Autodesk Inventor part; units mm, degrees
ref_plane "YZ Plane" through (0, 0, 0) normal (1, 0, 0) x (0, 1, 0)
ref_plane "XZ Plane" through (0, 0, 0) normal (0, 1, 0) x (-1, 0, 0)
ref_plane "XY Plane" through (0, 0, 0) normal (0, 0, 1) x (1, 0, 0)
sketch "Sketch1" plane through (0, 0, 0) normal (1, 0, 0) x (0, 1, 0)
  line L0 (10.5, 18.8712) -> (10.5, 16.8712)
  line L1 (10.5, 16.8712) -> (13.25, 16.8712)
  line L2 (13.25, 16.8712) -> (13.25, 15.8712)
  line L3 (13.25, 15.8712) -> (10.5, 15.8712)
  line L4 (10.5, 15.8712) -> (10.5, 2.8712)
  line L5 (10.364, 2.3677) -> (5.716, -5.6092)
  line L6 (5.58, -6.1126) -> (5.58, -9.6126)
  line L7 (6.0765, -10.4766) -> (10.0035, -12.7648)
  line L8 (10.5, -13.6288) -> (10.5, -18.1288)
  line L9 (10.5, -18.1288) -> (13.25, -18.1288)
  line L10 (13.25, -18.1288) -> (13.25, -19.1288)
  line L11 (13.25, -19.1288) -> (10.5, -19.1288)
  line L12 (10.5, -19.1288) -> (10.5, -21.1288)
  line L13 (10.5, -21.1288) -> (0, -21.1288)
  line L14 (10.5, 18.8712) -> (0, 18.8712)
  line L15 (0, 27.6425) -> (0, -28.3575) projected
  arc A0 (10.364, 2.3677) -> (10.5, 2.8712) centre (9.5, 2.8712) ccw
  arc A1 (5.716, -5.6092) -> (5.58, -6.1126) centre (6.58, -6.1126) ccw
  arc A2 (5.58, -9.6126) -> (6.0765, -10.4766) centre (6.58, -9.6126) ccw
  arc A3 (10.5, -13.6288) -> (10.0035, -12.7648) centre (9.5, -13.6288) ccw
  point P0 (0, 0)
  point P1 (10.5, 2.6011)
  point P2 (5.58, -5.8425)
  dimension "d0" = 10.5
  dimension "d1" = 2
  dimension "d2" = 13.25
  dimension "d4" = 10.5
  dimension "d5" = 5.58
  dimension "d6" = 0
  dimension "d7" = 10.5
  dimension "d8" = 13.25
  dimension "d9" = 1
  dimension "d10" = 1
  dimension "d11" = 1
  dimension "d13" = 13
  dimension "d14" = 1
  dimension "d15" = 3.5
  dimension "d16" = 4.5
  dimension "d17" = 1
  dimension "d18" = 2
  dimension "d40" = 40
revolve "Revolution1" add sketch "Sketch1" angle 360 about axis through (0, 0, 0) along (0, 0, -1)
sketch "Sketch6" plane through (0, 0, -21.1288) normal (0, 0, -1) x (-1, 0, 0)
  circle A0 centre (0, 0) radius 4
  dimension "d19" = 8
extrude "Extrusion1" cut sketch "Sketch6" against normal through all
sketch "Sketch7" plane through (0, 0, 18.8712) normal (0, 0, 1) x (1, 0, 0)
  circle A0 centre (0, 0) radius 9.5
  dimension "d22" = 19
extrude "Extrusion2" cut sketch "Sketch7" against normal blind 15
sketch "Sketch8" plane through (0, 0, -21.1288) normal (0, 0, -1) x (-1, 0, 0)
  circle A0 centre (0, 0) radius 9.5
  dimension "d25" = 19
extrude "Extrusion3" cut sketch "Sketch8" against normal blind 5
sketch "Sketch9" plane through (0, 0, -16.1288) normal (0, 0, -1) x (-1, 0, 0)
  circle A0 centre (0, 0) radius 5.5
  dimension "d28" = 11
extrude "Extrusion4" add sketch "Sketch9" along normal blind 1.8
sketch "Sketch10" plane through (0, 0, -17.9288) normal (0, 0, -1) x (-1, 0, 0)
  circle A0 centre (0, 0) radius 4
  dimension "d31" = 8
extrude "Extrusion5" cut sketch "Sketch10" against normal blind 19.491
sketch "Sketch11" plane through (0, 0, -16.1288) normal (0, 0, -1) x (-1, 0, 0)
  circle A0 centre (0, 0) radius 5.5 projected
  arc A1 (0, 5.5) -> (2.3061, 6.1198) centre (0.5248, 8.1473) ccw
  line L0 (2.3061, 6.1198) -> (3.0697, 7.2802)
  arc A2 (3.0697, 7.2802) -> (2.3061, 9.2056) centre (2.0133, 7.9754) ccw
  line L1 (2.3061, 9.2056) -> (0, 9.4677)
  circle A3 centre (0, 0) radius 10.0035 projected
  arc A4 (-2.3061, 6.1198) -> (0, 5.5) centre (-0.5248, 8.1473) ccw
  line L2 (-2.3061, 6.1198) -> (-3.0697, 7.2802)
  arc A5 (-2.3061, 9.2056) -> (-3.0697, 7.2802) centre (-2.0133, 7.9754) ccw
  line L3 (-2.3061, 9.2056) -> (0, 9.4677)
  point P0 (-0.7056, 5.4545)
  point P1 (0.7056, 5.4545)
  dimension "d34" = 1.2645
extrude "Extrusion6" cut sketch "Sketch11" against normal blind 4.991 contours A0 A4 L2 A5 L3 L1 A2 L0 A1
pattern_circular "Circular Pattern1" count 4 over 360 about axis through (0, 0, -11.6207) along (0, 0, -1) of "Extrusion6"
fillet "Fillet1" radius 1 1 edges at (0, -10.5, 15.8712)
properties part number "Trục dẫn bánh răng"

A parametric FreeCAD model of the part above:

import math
import FreeCAD as App
import Part
import Sketcher
from FreeCAD import Vector


def edges_at(feature, points):
    """Names of the edges that pass closest to the given points."""
    edges = feature.Shape.Edges
    near = lambda p: min(range(len(edges)), key=lambda i: edges[i].distToShape(Part.Vertex(*p))[0])
    return sorted({f"Edge{near(p) + 1}" for p in points})

doc = App.newDocument("Part")
params = doc.addObject("Spreadsheet::Sheet", "Params")
for row, (alias, value) in enumerate([
    ("sketch1_radius", "1 mm"),
    ("sketch1_height", "2 mm"),
    ("sketch1_height2", "40 mm"),
    ("sketch1_height3", "1 mm"),
    ("sketch1_height4", "13 mm"),
    ("revolution_angle", "360 deg"),
    ("sketch2_diameter", "8 mm"),
    ("sketch3_diameter", "19 mm"),
    ("pocket2_length", "15 mm"),
    ("sketch4_diameter", "19 mm"),
    ("pocket3_length", "5 mm"),
    ("sketch5_diameter", "11 mm"),
    ("pad1_length", "1.8 mm"),
    ("sketch6_diameter", "8 mm"),
    ("pocket4_length", "19.491 mm"),
    ("sketch7_radius", "5.5 mm"),
    ("pocket5_length", "4.991 mm"),
    ("fillet_radius", "1 mm"),
], start=1):
    params.set(f"A{row}", alias)
    params.set(f"B{row}", "=" + value)
    params.setAlias(f"B{row}", alias)

body = doc.addObject("PartDesign::Body", "Body")

# Sketch on YZ plane
sketch1 = doc.addObject("Sketcher::SketchObject", "Sketch")
body.addObject(sketch1)
sketch1.AttachmentSupport = (doc.YZ_Plane, [""])
sketch1.MapMode = "FlatFace"
sketch1.addGeometry([
    Part.LineSegment(Vector(10.5, 16.9, 0), Vector(10.5, 18.9, 0)),  # 0
    Part.LineSegment(Vector(10.5, 18.9, 0), Vector(0, 18.9, 0)),  # 1
    Part.LineSegment(Vector(0, 18.9, 0), Vector(0, -21.1, 0)),  # 2
    Part.LineSegment(Vector(0, -21.1, 0), Vector(10.5, -21.1, 0)),  # 3
    Part.LineSegment(Vector(10.5, -21.1, 0), Vector(10.5, -19.1, 0)),  # 4
    Part.LineSegment(Vector(10.5, -19.1, 0), Vector(13.2, -19.1, 0)),  # 5
    Part.LineSegment(Vector(13.2, -19.1, 0), Vector(13.2, -18.1, 0)),  # 6
    Part.LineSegment(Vector(13.2, -18.1, 0), Vector(10.5, -18.1, 0)),  # 7
    Part.LineSegment(Vector(10.5, -18.1, 0), Vector(10.5, -13.6, 0)),  # 8
    Part.ArcOfCircle(Part.Circle(Vector(9.5, -13.6, 0), Vector(0, 0, 1), 1), math.radians(0), math.radians(60)),  # 9
    Part.LineSegment(Vector(10, -12.8, 0), Vector(6.1, -10.5, 0)),  # 10
    Part.ArcOfCircle(Part.Circle(Vector(6.6, -9.6, 0), Vector(0, 0, 1), 1), math.radians(180), math.radians(240)),  # 11
    Part.LineSegment(Vector(5.6, -9.6, 0), Vector(5.6, -6.1, 0)),  # 12
    Part.ArcOfCircle(Part.Circle(Vector(6.6, -6.1, 0), Vector(0, 0, 1), 1), math.radians(150), math.radians(180)),  # 13
    Part.LineSegment(Vector(5.7, -5.6, 0), Vector(10.4, 2.4, 0)),  # 14
    Part.ArcOfCircle(Part.Circle(Vector(9.5, 2.9, 0), Vector(0, 0, 1), 1), math.radians(-30), math.radians(0)),  # 15
    Part.LineSegment(Vector(10.5, 2.9, 0), Vector(10.5, 15.9, 0)),  # 16
    Part.LineSegment(Vector(10.5, 15.9, 0), Vector(13.2, 15.9, 0)),  # 17
    Part.LineSegment(Vector(13.2, 15.9, 0), Vector(13.2, 16.9, 0)),  # 18
    Part.LineSegment(Vector(13.2, 16.9, 0), Vector(10.5, 16.9, 0)),  # 19
], False)
sketch1.addConstraint([
    Sketcher.Constraint("Coincident", 0, 2, 1, 1),
    Sketcher.Constraint("Coincident", 1, 2, 2, 1),
    Sketcher.Constraint("Coincident", 2, 2, 3, 1),
    Sketcher.Constraint("Coincident", 3, 2, 4, 1),
    Sketcher.Constraint("Coincident", 4, 2, 5, 1),
    Sketcher.Constraint("Coincident", 5, 2, 6, 1),
    Sketcher.Constraint("Coincident", 6, 2, 7, 1),
    Sketcher.Constraint("Coincident", 7, 2, 8, 1),
    Sketcher.Constraint("Tangent", 8, 2, 9, 1),
    Sketcher.Constraint("Tangent", 9, 2, 10, 1),
    Sketcher.Constraint("Tangent", 10, 2, 11, 2),
    Sketcher.Constraint("Tangent", 11, 1, 12, 1),
    Sketcher.Constraint("Tangent", 12, 2, 13, 2),
    Sketcher.Constraint("Tangent", 13, 1, 14, 1),
    Sketcher.Constraint("Tangent", 14, 2, 15, 1),
    Sketcher.Constraint("Tangent", 15, 2, 16, 1),
    Sketcher.Constraint("Coincident", 16, 2, 17, 1),
    Sketcher.Constraint("Coincident", 17, 2, 18, 1),
    Sketcher.Constraint("Coincident", 18, 2, 19, 1),
    Sketcher.Constraint("Coincident", 19, 2, 0, 1),
    Sketcher.Constraint("Vertical", 0),
    Sketcher.Constraint("Horizontal", 1),
    Sketcher.Constraint("Vertical", 2),
    Sketcher.Constraint("Horizontal", 3),
    Sketcher.Constraint("Vertical", 4),
    Sketcher.Constraint("Horizontal", 5),
    Sketcher.Constraint("Vertical", 6),
    Sketcher.Constraint("Horizontal", 7),
    Sketcher.Constraint("Vertical", 8),
    Sketcher.Constraint("Vertical", 12),
    Sketcher.Constraint("Vertical", 16),
    Sketcher.Constraint("Horizontal", 17),
    Sketcher.Constraint("Vertical", 18),
    Sketcher.Constraint("Horizontal", 19),
    Sketcher.Constraint("Equal", 9, 11),
    Sketcher.Constraint("Equal", 11, 13),
    Sketcher.Constraint("Equal", 13, 15),
    Sketcher.Constraint("PointOnObject", 1, 2, -2),
    Sketcher.Constraint("Perpendicular", 10, 14),
    Sketcher.Constraint("Vertical", 9, 3, 15, 3),
    Sketcher.Constraint("Vertical", 0, 2, 3, 2),
    Sketcher.Constraint("Vertical", 4, 2, 7, 2),
    Sketcher.Constraint("Vertical", 6, 2, 17, 2),
    Sketcher.Constraint("Equal", 0, 4),
    Sketcher.Constraint("Equal", 6, 18),
    Sketcher.Constraint("Radius", 9, 1.0),
    Sketcher.Constraint("DistanceY", 0, 1, 0, 2, 2.0),
    Sketcher.Constraint("DistanceY", 2, 2, 2, 1, 40.0),
    Sketcher.Constraint("DistanceY", 6, 1, 6, 2, 1.0),
    Sketcher.Constraint("DistanceY", 16, 1, 16, 2, 13.0),
    Sketcher.Constraint("DistanceX", 1, 2, 1, 1, 10.5),
    Sketcher.Constraint("DistanceY", 8, 1, 8, 2, 4.5),
    Sketcher.Constraint("DistanceY", 12, 1, 12, 2, 3.5),
    Sketcher.Constraint("DistanceX", -1, 1, 5, 2, 13.25),
    Sketcher.Constraint("DistanceX", -1, 1, 11, 1, 5.58),
    Sketcher.Constraint("DistanceY", 9, 3, -1, 1, 13.6288),
])
sketch1.setExpression("Constraints[45]", "Params.sketch1_radius")
sketch1.setExpression("Constraints[46]", "Params.sketch1_height")
sketch1.setExpression("Constraints[47]", "Params.sketch1_height2")
sketch1.setExpression("Constraints[48]", "Params.sketch1_height3")
sketch1.setExpression("Constraints[49]", "Params.sketch1_height4")
revolution = doc.addObject("PartDesign::Revolution", "Revolution")
body.addObject(revolution)
revolution.Profile = sketch1
revolution.ReferenceAxis = (sketch1, ["V_Axis"])
revolution.setExpression("Angle", "Params.revolution_angle")

# Sketch on XY plane
sketch2 = doc.addObject("Sketcher::SketchObject", "Sketch001")
body.addObject(sketch2)
sketch2.AttachmentSupport = (doc.XY_Plane, [""])
sketch2.MapMode = "FlatFace"
sketch2.AttachmentOffset = App.Placement(Vector(0, 0, -21.1288), App.Rotation())
sketch2.addGeometry(Part.Circle(Vector(0, 0, 0), Vector(0, 0, 1), 4), False)
sketch2.addConstraint([
    Sketcher.Constraint("Coincident", 0, 3, -1, 1),
    Sketcher.Constraint("Diameter", 0, 8.0),
])
sketch2.setExpression("Constraints[1]", "Params.sketch2_diameter")
pocket1 = doc.addObject("PartDesign::Pocket", "Pocket")
body.addObject(pocket1)
pocket1.Profile = sketch2
pocket1.Type = "ThroughAll"
pocket1.Reversed = True

# Sketch on XY plane
sketch3 = doc.addObject("Sketcher::SketchObject", "Sketch002")
body.addObject(sketch3)
sketch3.AttachmentSupport = (doc.XY_Plane, [""])
sketch3.MapMode = "FlatFace"
sketch3.AttachmentOffset = App.Placement(Vector(0, 0, 18.8712), App.Rotation())
sketch3.addGeometry(Part.Circle(Vector(0, 0, 0), Vector(0, 0, 1), 10), False)
sketch3.addConstraint([
    Sketcher.Constraint("Coincident", 0, 3, -1, 1),
    Sketcher.Constraint("Diameter", 0, 19.0),
])
sketch3.setExpression("Constraints[1]", "Params.sketch3_diameter")
pocket2 = doc.addObject("PartDesign::Pocket", "Pocket001")
body.addObject(pocket2)
pocket2.Profile = sketch3
pocket2.setExpression("Length", "Params.pocket2_length")

# Sketch on XY plane
sketch4 = doc.addObject("Sketcher::SketchObject", "Sketch003")
body.addObject(sketch4)
sketch4.AttachmentSupport = (doc.XY_Plane, [""])
sketch4.MapMode = "FlatFace"
sketch4.AttachmentOffset = App.Placement(Vector(0, 0, -21.1288), App.Rotation())
sketch4.addGeometry(Part.Circle(Vector(0, 0, 0), Vector(0, 0, 1), 10), False)
sketch4.addConstraint([
    Sketcher.Constraint("Coincident", 0, 3, -1, 1),
    Sketcher.Constraint("Diameter", 0, 19.0),
])
sketch4.setExpression("Constraints[1]", "Params.sketch4_diameter")
pocket3 = doc.addObject("PartDesign::Pocket", "Pocket002")
body.addObject(pocket3)
pocket3.Profile = sketch4
pocket3.setExpression("Length", "Params.pocket3_length")
pocket3.Reversed = True

# Sketch on XY plane
sketch5 = doc.addObject("Sketcher::SketchObject", "Sketch004")
body.addObject(sketch5)
sketch5.AttachmentSupport = (doc.XY_Plane, [""])
sketch5.MapMode = "FlatFace"
sketch5.AttachmentOffset = App.Placement(Vector(0, 0, -16.1288), App.Rotation())
sketch5.addGeometry(Part.Circle(Vector(0, 0, 0), Vector(0, 0, 1), 6), False)
sketch5.addConstraint([
    Sketcher.Constraint("Coincident", 0, 3, -1, 1),
    Sketcher.Constraint("Diameter", 0, 11.0),
])
sketch5.setExpression("Constraints[1]", "Params.sketch5_diameter")
pad1 = doc.addObject("PartDesign::Pad", "Pad")
body.addObject(pad1)
pad1.Profile = sketch5
pad1.setExpression("Length", "Params.pad1_length")
pad1.Reversed = True

# Sketch on XY plane
sketch6 = doc.addObject("Sketcher::SketchObject", "Sketch005")
body.addObject(sketch6)
sketch6.AttachmentSupport = (doc.XY_Plane, [""])
sketch6.MapMode = "FlatFace"
sketch6.AttachmentOffset = App.Placement(Vector(0, 0, -17.9288), App.Rotation())
sketch6.addGeometry(Part.Circle(Vector(0, 0, 0), Vector(0, 0, 1), 4), False)
sketch6.addConstraint([
    Sketcher.Constraint("Coincident", 0, 3, -1, 1),
    Sketcher.Constraint("Diameter", 0, 8.0),
])
sketch6.setExpression("Constraints[1]", "Params.sketch6_diameter")
pocket4 = doc.addObject("PartDesign::Pocket", "Pocket003")
body.addObject(pocket4)
pocket4.Profile = sketch6
pocket4.setExpression("Length", "Params.pocket4_length")
pocket4.Reversed = True

# Sketch on XY plane
sketch7 = doc.addObject("Sketcher::SketchObject", "Sketch006")
body.addObject(sketch7)
sketch7.AttachmentSupport = (doc.XY_Plane, [""])
sketch7.MapMode = "FlatFace"
sketch7.AttachmentOffset = App.Placement(Vector(0, 0, -16.1288), App.Rotation())
sketch7.addGeometry([
    Part.ArcOfCircle(Part.Circle(Vector(0, 0, 0), Vector(0, 0, 1), 5.5), math.radians(82.63), math.radians(97.37)),  # 0
    Part.ArcOfCircle(Part.Circle(Vector(-0.5, 8.1, 0), Vector(0, 0, 1), 2.7), math.radians(-131), math.radians(-94)),  # 1
    Part.LineSegment(Vector(-2.3, 6.1, 0), Vector(-3.1, 7.3, 0)),  # 2
    Part.ArcOfCircle(Part.Circle(Vector(-2, 8, 0), Vector(0, 0, 1), 1.3), math.radians(103), math.radians(213)),  # 3
    Part.LineSegment(Vector(-2.3, 9.2, 0), Vector(0, 9.5, 0)),  # 4
    Part.LineSegment(Vector(0, 9.5, 0), Vector(2.3, 9.2, 0)),  # 5
    Part.ArcOfCircle(Part.Circle(Vector(2, 8, 0), Vector(0, 0, 1), 1.3), math.radians(-33), math.radians(77)),  # 6
    Part.LineSegment(Vector(3.1, 7.3, 0), Vector(2.3, 6.1, 0)),  # 7
    Part.ArcOfCircle(Part.Circle(Vector(0.5, 8.1, 0), Vector(0, 0, 1), 2.7), math.radians(-86), math.radians(-49)),  # 8
], False)
sketch7.addConstraint([
    Sketcher.Constraint("Coincident", 0, 2, 1, 2),
    Sketcher.Constraint("Coincident", 1, 1, 2, 1),
    Sketcher.Constraint("Tangent", 2, 2, 3, 2),
    Sketcher.Constraint("Coincident", 3, 1, 4, 1),
    Sketcher.Constraint("Coincident", 4, 2, 5, 1),
    Sketcher.Constraint("Coincident", 5, 2, 6, 2),
    Sketcher.Constraint("Tangent", 6, 1, 7, 1),
    Sketcher.Constraint("Coincident", 7, 2, 8, 2),
    Sketcher.Constraint("Coincident", 8, 1, 0, 1),
    Sketcher.Constraint("Coincident", 0, 3, -1, 1),
    Sketcher.Constraint("Equal", 3, 6),
    Sketcher.Constraint("Equal", 1, 8),
    Sketcher.Constraint("Symmetric", 3, 3, 6, 3, -2),
    Sketcher.Constraint("Symmetric", 1, 3, 8, 3, -2),
    Sketcher.Constraint("PointOnObject", 4, 2, -2),
    Sketcher.Constraint("Horizontal", 3, 1, 5, 2),
    Sketcher.Constraint("Horizontal", 2, 2, 6, 1),
    Sketcher.Constraint("Vertical", 1, 1, 3, 1),
    Sketcher.Constraint("Radius", 0, 5.5),
    Sketcher.Constraint("Radius", 3, 1.2646),
    Sketcher.Constraint("Radius", 1, 2.6988),
    Sketcher.Constraint("Distance", 2, 1.389),
    Sketcher.Constraint("Distance", 4, 2.321),
    Sketcher.Constraint("DistanceX", 1, 1, -1, 1, 2.306),
    Sketcher.Constraint("DistanceY", 3, 3, 1, 3, 0.172),
    Sketcher.Constraint("DistanceX", 1, 3, 6, 3, 2.538),
    Sketcher.Constraint("DistanceX", 0, 2, 6, 3, 2.719),
])
sketch7.setExpression("Constraints[18]", "Params.sketch7_radius")
pocket5 = doc.addObject("PartDesign::Pocket", "Pocket004")
body.addObject(pocket5)
pocket5.Profile = sketch7
pocket5.setExpression("Length", "Params.pocket5_length")
pocket5.Reversed = True
doc.recompute()

polarpattern = doc.addObject("PartDesign::PolarPattern", "PolarPattern")
body.addObject(polarpattern)
polarpattern.Originals = [pocket5]
polarpattern.Axis = (doc.Z_Axis, [""])
polarpattern.Angle = 360
polarpattern.Occurrences = 4
body.Tip = polarpattern
doc.recompute()

fillet = doc.addObject("PartDesign::Fillet", "Fillet")
body.addObject(fillet)
fillet.Base = (polarpattern, edges_at(polarpattern, [(0, -10.5, 15.871)]))
fillet.setExpression("Radius", "Params.fillet_radius")

doc.recompute()
